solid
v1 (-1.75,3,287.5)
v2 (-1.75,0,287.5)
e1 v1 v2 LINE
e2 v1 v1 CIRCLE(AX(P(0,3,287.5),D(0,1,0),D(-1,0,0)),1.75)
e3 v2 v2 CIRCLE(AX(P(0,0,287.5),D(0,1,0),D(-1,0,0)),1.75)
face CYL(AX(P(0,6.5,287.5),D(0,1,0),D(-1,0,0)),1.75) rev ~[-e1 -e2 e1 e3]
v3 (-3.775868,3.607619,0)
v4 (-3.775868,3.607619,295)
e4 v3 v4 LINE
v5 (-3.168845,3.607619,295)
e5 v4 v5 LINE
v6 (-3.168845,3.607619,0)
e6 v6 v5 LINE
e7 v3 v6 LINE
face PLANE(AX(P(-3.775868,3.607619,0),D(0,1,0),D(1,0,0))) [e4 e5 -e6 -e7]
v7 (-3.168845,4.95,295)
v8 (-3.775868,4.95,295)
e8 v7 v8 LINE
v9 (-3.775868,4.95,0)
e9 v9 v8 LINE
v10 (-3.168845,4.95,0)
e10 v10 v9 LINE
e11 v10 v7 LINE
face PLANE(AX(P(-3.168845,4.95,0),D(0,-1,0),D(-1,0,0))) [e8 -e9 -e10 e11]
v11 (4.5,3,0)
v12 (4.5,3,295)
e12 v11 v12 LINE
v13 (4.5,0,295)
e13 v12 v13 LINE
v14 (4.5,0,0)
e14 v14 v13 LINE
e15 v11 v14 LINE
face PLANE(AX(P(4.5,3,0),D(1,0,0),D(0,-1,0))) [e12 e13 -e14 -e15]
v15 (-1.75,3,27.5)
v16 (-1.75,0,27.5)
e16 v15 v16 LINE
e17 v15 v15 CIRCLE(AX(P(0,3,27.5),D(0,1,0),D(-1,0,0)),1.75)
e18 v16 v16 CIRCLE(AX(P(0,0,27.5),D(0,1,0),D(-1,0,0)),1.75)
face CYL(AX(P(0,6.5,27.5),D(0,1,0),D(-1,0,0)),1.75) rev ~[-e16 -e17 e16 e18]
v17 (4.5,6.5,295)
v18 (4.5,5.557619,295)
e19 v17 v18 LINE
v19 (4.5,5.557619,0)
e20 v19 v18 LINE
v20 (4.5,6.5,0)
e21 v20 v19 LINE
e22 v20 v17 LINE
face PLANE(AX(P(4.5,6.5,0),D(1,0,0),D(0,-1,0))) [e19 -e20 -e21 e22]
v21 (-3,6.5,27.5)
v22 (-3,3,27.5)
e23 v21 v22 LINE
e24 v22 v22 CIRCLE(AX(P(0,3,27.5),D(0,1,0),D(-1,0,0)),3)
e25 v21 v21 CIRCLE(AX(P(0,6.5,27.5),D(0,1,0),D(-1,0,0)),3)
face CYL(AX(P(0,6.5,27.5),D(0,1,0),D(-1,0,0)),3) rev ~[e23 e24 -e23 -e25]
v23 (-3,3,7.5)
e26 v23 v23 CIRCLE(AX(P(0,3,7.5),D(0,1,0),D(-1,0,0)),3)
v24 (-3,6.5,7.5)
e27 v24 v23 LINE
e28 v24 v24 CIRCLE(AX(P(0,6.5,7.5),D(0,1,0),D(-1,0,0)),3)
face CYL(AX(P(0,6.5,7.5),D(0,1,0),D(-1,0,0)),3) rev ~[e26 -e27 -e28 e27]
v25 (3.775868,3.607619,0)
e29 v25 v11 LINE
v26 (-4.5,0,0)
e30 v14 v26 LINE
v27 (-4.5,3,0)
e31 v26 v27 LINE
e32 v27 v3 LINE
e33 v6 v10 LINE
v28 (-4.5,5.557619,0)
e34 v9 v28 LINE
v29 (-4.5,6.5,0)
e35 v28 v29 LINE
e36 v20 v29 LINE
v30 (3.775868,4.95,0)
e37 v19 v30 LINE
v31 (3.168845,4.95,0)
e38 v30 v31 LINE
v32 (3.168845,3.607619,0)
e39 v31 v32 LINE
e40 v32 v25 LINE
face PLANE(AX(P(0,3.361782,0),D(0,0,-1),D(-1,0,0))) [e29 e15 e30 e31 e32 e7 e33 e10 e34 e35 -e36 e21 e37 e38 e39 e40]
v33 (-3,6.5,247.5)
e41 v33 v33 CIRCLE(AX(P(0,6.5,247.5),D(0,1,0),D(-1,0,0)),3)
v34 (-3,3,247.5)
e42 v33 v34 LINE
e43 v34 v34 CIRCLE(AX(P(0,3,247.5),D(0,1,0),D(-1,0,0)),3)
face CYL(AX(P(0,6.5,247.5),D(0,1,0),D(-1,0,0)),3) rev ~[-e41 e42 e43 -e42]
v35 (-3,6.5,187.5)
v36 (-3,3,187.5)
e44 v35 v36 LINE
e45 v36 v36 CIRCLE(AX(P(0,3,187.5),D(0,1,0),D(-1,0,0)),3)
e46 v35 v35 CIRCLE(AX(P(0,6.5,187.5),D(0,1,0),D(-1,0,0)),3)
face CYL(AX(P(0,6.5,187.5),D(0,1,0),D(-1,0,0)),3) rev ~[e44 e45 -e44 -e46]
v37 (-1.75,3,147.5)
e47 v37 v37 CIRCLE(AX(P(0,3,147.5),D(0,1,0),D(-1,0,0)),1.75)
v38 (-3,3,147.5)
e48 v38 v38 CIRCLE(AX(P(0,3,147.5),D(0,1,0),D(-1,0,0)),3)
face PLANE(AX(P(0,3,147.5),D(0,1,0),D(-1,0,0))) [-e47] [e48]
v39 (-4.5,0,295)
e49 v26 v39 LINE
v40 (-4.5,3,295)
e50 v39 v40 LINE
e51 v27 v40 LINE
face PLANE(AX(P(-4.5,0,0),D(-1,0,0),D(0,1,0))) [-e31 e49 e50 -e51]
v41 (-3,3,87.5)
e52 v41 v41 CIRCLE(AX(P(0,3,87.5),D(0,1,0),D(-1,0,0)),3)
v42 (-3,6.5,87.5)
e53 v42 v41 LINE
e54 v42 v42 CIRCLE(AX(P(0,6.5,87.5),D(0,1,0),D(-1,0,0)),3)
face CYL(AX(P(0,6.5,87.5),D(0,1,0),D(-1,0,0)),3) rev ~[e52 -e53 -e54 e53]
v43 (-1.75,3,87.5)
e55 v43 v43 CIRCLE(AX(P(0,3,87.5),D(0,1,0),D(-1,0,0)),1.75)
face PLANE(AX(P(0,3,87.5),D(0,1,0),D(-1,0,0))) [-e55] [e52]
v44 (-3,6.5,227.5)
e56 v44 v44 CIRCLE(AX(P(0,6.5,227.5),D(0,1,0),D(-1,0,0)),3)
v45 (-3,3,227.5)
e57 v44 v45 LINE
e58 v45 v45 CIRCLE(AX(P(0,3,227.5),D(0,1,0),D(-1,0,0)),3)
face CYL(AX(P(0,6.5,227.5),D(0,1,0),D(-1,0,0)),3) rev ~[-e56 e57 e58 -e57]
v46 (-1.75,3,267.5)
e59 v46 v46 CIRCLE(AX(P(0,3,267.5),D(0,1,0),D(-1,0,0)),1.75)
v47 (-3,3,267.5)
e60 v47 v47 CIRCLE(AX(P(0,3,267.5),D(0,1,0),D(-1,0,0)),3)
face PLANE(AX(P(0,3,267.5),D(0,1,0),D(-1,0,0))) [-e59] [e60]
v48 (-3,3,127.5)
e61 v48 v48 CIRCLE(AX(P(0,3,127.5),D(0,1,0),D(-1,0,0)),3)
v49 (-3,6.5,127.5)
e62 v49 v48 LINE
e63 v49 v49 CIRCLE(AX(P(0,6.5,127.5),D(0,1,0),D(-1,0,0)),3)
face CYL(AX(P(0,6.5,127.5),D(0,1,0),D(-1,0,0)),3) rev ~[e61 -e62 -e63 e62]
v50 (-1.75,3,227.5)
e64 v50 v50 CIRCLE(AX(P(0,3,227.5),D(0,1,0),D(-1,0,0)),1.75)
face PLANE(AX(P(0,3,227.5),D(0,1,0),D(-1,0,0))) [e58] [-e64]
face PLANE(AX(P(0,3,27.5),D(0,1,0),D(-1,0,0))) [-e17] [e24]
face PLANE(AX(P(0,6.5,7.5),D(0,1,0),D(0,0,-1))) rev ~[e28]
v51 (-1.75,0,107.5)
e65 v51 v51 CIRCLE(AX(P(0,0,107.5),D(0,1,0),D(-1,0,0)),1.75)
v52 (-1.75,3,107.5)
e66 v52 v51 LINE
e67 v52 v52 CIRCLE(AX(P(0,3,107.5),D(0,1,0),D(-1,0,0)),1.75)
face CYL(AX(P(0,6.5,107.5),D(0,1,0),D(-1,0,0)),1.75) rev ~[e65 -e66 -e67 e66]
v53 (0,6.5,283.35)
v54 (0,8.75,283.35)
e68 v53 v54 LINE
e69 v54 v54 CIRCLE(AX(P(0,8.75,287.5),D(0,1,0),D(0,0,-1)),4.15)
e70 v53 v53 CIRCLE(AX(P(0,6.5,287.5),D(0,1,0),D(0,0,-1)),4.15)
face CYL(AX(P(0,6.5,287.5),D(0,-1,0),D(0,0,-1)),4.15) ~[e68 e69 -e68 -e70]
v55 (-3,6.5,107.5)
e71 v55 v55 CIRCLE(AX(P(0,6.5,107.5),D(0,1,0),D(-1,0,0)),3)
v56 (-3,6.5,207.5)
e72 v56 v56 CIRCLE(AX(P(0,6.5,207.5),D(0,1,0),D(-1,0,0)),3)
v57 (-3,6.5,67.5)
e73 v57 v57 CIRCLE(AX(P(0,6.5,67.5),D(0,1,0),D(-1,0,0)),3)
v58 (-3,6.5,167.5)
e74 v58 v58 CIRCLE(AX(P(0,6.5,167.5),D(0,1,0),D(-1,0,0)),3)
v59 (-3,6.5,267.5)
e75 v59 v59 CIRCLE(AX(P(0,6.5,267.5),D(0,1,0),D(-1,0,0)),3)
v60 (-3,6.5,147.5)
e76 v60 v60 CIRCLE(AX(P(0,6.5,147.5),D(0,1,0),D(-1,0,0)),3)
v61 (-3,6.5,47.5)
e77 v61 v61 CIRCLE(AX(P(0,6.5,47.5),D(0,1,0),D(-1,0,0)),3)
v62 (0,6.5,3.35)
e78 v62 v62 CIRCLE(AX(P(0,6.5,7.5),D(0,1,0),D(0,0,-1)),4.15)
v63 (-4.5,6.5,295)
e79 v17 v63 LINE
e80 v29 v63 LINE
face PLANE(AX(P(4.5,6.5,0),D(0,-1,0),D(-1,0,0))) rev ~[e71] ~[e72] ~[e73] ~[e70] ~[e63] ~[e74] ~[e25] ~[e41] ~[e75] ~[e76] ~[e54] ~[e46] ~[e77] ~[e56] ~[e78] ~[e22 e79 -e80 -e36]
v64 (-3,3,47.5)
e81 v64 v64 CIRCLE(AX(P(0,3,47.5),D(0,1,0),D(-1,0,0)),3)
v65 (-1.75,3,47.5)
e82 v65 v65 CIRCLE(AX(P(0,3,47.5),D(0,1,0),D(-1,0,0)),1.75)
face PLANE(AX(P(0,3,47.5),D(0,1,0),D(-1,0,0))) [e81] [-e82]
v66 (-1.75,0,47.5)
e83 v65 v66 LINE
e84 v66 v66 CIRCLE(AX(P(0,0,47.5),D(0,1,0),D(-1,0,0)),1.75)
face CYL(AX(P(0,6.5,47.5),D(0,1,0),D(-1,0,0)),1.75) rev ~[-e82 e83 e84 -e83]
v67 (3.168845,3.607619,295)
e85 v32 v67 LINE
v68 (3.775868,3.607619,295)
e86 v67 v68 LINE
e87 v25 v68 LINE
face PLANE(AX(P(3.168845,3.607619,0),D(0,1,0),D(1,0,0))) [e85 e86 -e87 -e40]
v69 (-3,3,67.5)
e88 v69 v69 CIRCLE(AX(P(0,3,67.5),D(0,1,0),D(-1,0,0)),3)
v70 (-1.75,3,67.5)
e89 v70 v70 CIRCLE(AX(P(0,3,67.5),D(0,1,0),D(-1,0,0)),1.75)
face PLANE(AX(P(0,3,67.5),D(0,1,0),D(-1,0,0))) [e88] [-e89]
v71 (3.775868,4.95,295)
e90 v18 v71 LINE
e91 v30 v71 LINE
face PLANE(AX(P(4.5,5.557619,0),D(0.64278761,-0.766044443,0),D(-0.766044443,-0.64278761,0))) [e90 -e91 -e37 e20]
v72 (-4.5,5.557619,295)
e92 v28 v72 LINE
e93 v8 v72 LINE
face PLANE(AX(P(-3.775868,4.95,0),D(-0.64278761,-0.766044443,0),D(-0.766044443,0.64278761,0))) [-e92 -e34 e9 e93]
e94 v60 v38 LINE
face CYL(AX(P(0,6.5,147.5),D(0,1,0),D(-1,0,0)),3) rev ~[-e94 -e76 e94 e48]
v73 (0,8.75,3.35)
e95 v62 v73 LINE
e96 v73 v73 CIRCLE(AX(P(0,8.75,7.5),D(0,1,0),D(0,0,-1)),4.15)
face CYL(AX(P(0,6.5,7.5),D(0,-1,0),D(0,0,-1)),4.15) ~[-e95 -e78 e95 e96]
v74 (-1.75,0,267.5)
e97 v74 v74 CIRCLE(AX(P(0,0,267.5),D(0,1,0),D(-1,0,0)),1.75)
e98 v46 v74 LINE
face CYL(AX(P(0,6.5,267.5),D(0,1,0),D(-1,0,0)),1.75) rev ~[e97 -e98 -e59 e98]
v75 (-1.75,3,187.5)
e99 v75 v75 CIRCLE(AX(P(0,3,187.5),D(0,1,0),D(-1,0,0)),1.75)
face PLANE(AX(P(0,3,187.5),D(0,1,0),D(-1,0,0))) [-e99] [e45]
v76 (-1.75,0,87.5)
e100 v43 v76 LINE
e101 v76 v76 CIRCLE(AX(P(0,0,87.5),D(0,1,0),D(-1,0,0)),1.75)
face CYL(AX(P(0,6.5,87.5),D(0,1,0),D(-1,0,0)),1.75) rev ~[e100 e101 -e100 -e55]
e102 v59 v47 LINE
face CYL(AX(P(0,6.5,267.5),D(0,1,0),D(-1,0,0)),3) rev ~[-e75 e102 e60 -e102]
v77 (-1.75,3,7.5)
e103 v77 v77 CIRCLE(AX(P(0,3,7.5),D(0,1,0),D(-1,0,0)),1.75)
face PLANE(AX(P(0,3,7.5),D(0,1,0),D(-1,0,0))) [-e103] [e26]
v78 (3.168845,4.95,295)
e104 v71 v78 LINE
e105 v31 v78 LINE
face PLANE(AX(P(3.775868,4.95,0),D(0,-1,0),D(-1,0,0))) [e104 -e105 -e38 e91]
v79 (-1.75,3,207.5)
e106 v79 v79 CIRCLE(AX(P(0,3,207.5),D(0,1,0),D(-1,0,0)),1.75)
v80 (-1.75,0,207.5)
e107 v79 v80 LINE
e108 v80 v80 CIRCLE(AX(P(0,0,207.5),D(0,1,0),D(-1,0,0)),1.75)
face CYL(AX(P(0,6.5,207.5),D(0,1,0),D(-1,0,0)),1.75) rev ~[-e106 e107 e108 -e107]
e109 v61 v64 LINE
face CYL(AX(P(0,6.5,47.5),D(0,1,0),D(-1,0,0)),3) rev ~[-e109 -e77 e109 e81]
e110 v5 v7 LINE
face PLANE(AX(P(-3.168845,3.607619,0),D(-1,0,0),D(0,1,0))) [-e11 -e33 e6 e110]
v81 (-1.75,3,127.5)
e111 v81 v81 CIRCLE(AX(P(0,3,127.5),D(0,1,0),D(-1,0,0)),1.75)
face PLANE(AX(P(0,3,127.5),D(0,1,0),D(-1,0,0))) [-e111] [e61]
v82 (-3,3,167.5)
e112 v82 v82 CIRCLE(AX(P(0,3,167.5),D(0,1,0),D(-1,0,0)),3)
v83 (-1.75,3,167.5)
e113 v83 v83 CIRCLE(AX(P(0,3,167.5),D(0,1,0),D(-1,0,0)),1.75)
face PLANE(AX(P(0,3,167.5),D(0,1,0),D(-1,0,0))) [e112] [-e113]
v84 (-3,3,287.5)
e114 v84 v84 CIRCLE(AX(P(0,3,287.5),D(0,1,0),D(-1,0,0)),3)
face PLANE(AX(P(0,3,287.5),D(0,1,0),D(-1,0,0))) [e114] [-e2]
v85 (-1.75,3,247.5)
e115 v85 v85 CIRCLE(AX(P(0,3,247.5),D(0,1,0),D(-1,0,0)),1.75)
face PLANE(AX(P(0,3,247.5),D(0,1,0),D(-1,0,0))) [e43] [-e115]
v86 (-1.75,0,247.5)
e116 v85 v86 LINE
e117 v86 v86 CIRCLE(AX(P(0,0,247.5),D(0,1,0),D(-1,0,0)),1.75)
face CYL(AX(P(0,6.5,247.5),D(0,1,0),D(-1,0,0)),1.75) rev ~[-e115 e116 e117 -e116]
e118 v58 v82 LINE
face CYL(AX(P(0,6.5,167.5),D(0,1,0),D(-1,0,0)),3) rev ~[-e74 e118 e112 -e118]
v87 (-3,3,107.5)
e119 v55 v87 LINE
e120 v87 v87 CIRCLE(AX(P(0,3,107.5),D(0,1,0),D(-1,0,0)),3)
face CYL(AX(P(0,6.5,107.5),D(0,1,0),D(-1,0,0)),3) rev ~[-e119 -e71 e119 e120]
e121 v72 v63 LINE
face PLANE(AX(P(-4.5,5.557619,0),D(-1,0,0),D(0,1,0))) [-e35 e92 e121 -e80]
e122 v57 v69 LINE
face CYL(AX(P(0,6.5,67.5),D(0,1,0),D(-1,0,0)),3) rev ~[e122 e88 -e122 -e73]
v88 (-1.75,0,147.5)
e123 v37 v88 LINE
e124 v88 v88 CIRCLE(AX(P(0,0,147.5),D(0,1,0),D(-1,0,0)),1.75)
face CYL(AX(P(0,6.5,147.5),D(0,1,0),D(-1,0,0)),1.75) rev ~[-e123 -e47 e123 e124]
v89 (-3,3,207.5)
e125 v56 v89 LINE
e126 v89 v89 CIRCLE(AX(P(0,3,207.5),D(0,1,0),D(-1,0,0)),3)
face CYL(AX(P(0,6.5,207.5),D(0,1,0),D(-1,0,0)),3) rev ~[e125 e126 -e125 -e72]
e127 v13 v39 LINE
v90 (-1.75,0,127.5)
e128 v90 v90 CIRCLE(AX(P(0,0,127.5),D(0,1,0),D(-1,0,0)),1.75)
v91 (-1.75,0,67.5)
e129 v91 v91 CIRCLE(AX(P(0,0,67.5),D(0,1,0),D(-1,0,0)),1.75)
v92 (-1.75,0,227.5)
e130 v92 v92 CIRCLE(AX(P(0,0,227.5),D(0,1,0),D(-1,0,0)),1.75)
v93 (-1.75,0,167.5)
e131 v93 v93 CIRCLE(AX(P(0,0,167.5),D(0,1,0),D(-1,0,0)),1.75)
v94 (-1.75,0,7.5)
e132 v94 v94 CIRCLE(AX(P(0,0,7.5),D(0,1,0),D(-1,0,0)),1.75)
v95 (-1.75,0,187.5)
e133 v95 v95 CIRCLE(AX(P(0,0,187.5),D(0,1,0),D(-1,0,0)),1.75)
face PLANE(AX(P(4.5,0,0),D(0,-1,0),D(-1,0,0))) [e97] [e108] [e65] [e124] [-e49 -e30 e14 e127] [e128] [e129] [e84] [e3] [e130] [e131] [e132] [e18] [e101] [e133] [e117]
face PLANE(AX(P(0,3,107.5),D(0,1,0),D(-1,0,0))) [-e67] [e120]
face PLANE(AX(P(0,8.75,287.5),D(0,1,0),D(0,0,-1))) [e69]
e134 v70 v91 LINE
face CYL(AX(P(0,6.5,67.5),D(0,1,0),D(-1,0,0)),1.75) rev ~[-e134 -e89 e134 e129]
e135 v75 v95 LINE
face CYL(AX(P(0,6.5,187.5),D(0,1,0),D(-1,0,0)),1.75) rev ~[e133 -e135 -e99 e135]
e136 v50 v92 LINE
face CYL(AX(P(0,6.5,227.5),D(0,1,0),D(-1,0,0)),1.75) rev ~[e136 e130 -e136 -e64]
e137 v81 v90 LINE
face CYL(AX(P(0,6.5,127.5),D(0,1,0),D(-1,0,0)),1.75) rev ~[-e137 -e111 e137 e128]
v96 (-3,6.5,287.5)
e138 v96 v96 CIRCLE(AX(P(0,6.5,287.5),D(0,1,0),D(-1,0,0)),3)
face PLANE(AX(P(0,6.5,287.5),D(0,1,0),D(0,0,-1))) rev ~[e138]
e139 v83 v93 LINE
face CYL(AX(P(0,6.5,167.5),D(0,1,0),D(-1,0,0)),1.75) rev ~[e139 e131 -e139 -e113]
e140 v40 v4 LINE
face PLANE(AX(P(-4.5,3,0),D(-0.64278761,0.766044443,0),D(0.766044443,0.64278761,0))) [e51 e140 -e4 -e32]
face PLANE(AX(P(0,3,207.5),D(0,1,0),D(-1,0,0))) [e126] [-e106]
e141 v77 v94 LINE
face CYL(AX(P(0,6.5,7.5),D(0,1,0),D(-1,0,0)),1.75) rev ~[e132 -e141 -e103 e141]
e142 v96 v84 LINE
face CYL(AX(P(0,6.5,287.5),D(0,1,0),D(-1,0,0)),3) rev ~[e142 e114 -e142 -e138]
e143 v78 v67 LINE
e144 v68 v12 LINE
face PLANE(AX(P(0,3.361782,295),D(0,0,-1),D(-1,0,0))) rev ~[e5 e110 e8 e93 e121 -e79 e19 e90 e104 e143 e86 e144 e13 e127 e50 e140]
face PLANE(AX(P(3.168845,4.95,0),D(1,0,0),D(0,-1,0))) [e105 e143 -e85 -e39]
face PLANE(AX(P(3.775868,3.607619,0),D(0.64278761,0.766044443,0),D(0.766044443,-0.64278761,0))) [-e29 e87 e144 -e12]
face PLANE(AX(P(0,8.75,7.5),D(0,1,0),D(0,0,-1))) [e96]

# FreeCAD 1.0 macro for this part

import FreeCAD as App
import Part
import Sketcher
Q = App.Units.Quantity


def add_polygon(sketch, points):
    """Adds a closed chain of lines whose ends are joined by coincident constraints."""
    first, n = sketch.GeometryCount, len(points)
    for a, b in zip(points, points[1:] + points[:1]):
        sketch.addGeometry(Part.LineSegment(App.Vector(*a, 0), App.Vector(*b, 0)), False)
    for i in range(n):
        sketch.addConstraint(Sketcher.Constraint("Coincident", first + i, 2, first + (i + 1) % n, 1))

doc = App.newDocument("Part")
body = doc.addObject("PartDesign::Body", "Body")

sketch1 = doc.addObject("Sketcher::SketchObject", "Sketch")
body.addObject(sketch1)
sketch1.AttachmentSupport = (doc.XY_Plane, [""])
sketch1.MapMode = "FlatFace"
add_polygon(sketch1, [(-4.5, 0), (4.5, 0), (4.5, 3), (3.8, 3.6), (3.2, 3.6), (3.2, 5), (3.8, 5), (4.5, 5.6), (4.5, 6.5), (-4.5, 6.5), (-4.5, 5.6), (-3.8, 5), (-3.2, 5), (-3.2, 3.6), (-3.8, 3.6), (-4.5, 3)])
sketch1.addConstraint([
    Sketcher.Constraint("Horizontal", 0),
    Sketcher.Constraint("Vertical", 1),
    Sketcher.Constraint("Horizontal", 3),
    Sketcher.Constraint("Vertical", 4),
    Sketcher.Constraint("Horizontal", 5),
    Sketcher.Constraint("Vertical", 7),
    Sketcher.Constraint("Horizontal", 8),
    Sketcher.Constraint("Vertical", 9),
    Sketcher.Constraint("Horizontal", 11),
    Sketcher.Constraint("Vertical", 12),
    Sketcher.Constraint("Horizontal", 13),
    Sketcher.Constraint("Vertical", 15),
    Sketcher.Constraint("Symmetric", 0, 2, 15, 2, -1, 1),
    Sketcher.Constraint("Symmetric", 6, 2, 9, 2, -2),
    Sketcher.Constraint("Symmetric", 5, 2, 10, 2, -2),
    Sketcher.Constraint("Symmetric", 3, 2, 12, 2, -2),
    Sketcher.Constraint("Parallel", 2, 10),
    Sketcher.Constraint("Parallel", 6, 14),
    Sketcher.Constraint("Horizontal", 1, 2, 14, 2),
    Sketcher.Constraint("Vertical", 2, 2, 5, 2),
    Sketcher.Constraint("Vertical", 1, 2, 6, 2),
    Sketcher.Constraint("DistanceX", 0, 1, 0, 2, 9.0),
    Sketcher.Constraint("DistanceY", 1, 1, 1, 2, 3.0),
    Sketcher.Constraint("Angle", 2, Q("140 deg")),
    Sketcher.Constraint("DistanceY", -1, 1, 7, 2, 6.5),
    Sketcher.Constraint("DistanceY", -1, 1, 4, 2, 4.95),
    Sketcher.Constraint("DistanceY", 4, 1, 4, 2, 1.342381),
    Sketcher.Constraint("DistanceX", 3, 2, 3, 1, 0.607023),
])
pad1 = doc.addObject("PartDesign::Pad", "Pad")
body.addObject(pad1)
pad1.Profile = sketch1
pad1.Length = 295

sketch2 = doc.addObject("Sketcher::SketchObject", "Sketch001")
body.addObject(sketch2)
sketch2.AttachmentSupport = (doc.XZ_Plane, [""])
sketch2.MapMode = "FlatFace"
sketch2.AttachmentOffset = App.Placement(App.Vector(0, 0, -6.5), App.Rotation())
sketch2.addGeometry(Part.Circle(App.Vector(0, 7.5, 0), App.Vector(0, 0, 1), 1.8), False)
sketch2.addConstraint([
    Sketcher.Constraint("PointOnObject", 0, 3, -2),
    Sketcher.Constraint("Diameter", 0, 3.5),
    Sketcher.Constraint("DistanceY", -1, 1, 0, 3, 7.5),
])
pocket1 = doc.addObject("PartDesign::Pocket", "Pocket")
body.addObject(pocket1)
pocket1.Profile = sketch2
pocket1.Type = "ThroughAll"
pocket1.Reversed = True

sketch3 = doc.addObject("Sketcher::SketchObject", "Sketch002")
body.addObject(sketch3)
sketch3.AttachmentSupport = (doc.XZ_Plane, [""])
sketch3.MapMode = "FlatFace"
sketch3.AttachmentOffset = App.Placement(App.Vector(0, 0, -6.5), App.Rotation())
sketch3.addGeometry([
    Part.Circle(App.Vector(0, 7.5, 0), App.Vector(0, 0, 1), 3),
    Part.Circle(App.Vector(0, 7.5, 0), App.Vector(0, 0, 1), 1.8),
], False)
sketch3.addConstraint([
    Sketcher.Constraint("Coincident", 1, 3, 0, 3),
    Sketcher.Constraint("PointOnObject", 0, 3, -2),
    Sketcher.Constraint("Diameter", 0, 6.0),
    Sketcher.Constraint("Diameter", 1, 3.5),
    Sketcher.Constraint("DistanceY", -1, 1, 0, 3, 7.5),
])
pocket2 = doc.addObject("PartDesign::Pocket", "Pocket001")
body.addObject(pocket2)
pocket2.Profile = sketch3
pocket2.Length = 3.5
pocket2.Reversed = True
doc.recompute()

linearpattern = doc.addObject("PartDesign::LinearPattern", "LinearPattern")
body.addObject(linearpattern)
linearpattern.Originals = [pocket1, pocket2]
linearpattern.Direction = (doc.Z_Axis, [""])
linearpattern.Mode = "offset"
linearpattern.Offset = 20
linearpattern.Occurrences = 15
body.Tip = linearpattern

sketch4 = doc.addObject("Sketcher::SketchObject", "Sketch003")
body.addObject(sketch4)
sketch4.AttachmentSupport = (doc.XZ_Plane, [""])
sketch4.MapMode = "FlatFace"
sketch4.AttachmentOffset = App.Placement(App.Vector(0, 0, -6.5), App.Rotation())
sketch4.addGeometry(Part.Circle(App.Vector(0, 7.5, 0), App.Vector(0, 0, 1), 4.2), False)
sketch4.addConstraint([
    Sketcher.Constraint("PointOnObject", 0, 3, -2),
    Sketcher.Constraint("Diameter", 0, 8.3),
    Sketcher.Constraint("DistanceY", -1, 1, 0, 3, 7.5),
])
pad2 = doc.addObject("PartDesign::Pad", "Pad001")
body.addObject(pad2)
pad2.Profile = sketch4
pad2.Length = 2.25
pad2.Reversed = True
doc.recompute()

linearpattern2 = doc.addObject("PartDesign::LinearPattern", "LinearPattern001")
body.addObject(linearpattern2)
linearpattern2.Originals = [pad2]
linearpattern2.Direction = (doc.Z_Axis, [""])
linearpattern2.Mode = "offset"
linearpattern2.Offset = 280
linearpattern2.Occurrences = 2
body.Tip = linearpattern2

doc.recompute()
